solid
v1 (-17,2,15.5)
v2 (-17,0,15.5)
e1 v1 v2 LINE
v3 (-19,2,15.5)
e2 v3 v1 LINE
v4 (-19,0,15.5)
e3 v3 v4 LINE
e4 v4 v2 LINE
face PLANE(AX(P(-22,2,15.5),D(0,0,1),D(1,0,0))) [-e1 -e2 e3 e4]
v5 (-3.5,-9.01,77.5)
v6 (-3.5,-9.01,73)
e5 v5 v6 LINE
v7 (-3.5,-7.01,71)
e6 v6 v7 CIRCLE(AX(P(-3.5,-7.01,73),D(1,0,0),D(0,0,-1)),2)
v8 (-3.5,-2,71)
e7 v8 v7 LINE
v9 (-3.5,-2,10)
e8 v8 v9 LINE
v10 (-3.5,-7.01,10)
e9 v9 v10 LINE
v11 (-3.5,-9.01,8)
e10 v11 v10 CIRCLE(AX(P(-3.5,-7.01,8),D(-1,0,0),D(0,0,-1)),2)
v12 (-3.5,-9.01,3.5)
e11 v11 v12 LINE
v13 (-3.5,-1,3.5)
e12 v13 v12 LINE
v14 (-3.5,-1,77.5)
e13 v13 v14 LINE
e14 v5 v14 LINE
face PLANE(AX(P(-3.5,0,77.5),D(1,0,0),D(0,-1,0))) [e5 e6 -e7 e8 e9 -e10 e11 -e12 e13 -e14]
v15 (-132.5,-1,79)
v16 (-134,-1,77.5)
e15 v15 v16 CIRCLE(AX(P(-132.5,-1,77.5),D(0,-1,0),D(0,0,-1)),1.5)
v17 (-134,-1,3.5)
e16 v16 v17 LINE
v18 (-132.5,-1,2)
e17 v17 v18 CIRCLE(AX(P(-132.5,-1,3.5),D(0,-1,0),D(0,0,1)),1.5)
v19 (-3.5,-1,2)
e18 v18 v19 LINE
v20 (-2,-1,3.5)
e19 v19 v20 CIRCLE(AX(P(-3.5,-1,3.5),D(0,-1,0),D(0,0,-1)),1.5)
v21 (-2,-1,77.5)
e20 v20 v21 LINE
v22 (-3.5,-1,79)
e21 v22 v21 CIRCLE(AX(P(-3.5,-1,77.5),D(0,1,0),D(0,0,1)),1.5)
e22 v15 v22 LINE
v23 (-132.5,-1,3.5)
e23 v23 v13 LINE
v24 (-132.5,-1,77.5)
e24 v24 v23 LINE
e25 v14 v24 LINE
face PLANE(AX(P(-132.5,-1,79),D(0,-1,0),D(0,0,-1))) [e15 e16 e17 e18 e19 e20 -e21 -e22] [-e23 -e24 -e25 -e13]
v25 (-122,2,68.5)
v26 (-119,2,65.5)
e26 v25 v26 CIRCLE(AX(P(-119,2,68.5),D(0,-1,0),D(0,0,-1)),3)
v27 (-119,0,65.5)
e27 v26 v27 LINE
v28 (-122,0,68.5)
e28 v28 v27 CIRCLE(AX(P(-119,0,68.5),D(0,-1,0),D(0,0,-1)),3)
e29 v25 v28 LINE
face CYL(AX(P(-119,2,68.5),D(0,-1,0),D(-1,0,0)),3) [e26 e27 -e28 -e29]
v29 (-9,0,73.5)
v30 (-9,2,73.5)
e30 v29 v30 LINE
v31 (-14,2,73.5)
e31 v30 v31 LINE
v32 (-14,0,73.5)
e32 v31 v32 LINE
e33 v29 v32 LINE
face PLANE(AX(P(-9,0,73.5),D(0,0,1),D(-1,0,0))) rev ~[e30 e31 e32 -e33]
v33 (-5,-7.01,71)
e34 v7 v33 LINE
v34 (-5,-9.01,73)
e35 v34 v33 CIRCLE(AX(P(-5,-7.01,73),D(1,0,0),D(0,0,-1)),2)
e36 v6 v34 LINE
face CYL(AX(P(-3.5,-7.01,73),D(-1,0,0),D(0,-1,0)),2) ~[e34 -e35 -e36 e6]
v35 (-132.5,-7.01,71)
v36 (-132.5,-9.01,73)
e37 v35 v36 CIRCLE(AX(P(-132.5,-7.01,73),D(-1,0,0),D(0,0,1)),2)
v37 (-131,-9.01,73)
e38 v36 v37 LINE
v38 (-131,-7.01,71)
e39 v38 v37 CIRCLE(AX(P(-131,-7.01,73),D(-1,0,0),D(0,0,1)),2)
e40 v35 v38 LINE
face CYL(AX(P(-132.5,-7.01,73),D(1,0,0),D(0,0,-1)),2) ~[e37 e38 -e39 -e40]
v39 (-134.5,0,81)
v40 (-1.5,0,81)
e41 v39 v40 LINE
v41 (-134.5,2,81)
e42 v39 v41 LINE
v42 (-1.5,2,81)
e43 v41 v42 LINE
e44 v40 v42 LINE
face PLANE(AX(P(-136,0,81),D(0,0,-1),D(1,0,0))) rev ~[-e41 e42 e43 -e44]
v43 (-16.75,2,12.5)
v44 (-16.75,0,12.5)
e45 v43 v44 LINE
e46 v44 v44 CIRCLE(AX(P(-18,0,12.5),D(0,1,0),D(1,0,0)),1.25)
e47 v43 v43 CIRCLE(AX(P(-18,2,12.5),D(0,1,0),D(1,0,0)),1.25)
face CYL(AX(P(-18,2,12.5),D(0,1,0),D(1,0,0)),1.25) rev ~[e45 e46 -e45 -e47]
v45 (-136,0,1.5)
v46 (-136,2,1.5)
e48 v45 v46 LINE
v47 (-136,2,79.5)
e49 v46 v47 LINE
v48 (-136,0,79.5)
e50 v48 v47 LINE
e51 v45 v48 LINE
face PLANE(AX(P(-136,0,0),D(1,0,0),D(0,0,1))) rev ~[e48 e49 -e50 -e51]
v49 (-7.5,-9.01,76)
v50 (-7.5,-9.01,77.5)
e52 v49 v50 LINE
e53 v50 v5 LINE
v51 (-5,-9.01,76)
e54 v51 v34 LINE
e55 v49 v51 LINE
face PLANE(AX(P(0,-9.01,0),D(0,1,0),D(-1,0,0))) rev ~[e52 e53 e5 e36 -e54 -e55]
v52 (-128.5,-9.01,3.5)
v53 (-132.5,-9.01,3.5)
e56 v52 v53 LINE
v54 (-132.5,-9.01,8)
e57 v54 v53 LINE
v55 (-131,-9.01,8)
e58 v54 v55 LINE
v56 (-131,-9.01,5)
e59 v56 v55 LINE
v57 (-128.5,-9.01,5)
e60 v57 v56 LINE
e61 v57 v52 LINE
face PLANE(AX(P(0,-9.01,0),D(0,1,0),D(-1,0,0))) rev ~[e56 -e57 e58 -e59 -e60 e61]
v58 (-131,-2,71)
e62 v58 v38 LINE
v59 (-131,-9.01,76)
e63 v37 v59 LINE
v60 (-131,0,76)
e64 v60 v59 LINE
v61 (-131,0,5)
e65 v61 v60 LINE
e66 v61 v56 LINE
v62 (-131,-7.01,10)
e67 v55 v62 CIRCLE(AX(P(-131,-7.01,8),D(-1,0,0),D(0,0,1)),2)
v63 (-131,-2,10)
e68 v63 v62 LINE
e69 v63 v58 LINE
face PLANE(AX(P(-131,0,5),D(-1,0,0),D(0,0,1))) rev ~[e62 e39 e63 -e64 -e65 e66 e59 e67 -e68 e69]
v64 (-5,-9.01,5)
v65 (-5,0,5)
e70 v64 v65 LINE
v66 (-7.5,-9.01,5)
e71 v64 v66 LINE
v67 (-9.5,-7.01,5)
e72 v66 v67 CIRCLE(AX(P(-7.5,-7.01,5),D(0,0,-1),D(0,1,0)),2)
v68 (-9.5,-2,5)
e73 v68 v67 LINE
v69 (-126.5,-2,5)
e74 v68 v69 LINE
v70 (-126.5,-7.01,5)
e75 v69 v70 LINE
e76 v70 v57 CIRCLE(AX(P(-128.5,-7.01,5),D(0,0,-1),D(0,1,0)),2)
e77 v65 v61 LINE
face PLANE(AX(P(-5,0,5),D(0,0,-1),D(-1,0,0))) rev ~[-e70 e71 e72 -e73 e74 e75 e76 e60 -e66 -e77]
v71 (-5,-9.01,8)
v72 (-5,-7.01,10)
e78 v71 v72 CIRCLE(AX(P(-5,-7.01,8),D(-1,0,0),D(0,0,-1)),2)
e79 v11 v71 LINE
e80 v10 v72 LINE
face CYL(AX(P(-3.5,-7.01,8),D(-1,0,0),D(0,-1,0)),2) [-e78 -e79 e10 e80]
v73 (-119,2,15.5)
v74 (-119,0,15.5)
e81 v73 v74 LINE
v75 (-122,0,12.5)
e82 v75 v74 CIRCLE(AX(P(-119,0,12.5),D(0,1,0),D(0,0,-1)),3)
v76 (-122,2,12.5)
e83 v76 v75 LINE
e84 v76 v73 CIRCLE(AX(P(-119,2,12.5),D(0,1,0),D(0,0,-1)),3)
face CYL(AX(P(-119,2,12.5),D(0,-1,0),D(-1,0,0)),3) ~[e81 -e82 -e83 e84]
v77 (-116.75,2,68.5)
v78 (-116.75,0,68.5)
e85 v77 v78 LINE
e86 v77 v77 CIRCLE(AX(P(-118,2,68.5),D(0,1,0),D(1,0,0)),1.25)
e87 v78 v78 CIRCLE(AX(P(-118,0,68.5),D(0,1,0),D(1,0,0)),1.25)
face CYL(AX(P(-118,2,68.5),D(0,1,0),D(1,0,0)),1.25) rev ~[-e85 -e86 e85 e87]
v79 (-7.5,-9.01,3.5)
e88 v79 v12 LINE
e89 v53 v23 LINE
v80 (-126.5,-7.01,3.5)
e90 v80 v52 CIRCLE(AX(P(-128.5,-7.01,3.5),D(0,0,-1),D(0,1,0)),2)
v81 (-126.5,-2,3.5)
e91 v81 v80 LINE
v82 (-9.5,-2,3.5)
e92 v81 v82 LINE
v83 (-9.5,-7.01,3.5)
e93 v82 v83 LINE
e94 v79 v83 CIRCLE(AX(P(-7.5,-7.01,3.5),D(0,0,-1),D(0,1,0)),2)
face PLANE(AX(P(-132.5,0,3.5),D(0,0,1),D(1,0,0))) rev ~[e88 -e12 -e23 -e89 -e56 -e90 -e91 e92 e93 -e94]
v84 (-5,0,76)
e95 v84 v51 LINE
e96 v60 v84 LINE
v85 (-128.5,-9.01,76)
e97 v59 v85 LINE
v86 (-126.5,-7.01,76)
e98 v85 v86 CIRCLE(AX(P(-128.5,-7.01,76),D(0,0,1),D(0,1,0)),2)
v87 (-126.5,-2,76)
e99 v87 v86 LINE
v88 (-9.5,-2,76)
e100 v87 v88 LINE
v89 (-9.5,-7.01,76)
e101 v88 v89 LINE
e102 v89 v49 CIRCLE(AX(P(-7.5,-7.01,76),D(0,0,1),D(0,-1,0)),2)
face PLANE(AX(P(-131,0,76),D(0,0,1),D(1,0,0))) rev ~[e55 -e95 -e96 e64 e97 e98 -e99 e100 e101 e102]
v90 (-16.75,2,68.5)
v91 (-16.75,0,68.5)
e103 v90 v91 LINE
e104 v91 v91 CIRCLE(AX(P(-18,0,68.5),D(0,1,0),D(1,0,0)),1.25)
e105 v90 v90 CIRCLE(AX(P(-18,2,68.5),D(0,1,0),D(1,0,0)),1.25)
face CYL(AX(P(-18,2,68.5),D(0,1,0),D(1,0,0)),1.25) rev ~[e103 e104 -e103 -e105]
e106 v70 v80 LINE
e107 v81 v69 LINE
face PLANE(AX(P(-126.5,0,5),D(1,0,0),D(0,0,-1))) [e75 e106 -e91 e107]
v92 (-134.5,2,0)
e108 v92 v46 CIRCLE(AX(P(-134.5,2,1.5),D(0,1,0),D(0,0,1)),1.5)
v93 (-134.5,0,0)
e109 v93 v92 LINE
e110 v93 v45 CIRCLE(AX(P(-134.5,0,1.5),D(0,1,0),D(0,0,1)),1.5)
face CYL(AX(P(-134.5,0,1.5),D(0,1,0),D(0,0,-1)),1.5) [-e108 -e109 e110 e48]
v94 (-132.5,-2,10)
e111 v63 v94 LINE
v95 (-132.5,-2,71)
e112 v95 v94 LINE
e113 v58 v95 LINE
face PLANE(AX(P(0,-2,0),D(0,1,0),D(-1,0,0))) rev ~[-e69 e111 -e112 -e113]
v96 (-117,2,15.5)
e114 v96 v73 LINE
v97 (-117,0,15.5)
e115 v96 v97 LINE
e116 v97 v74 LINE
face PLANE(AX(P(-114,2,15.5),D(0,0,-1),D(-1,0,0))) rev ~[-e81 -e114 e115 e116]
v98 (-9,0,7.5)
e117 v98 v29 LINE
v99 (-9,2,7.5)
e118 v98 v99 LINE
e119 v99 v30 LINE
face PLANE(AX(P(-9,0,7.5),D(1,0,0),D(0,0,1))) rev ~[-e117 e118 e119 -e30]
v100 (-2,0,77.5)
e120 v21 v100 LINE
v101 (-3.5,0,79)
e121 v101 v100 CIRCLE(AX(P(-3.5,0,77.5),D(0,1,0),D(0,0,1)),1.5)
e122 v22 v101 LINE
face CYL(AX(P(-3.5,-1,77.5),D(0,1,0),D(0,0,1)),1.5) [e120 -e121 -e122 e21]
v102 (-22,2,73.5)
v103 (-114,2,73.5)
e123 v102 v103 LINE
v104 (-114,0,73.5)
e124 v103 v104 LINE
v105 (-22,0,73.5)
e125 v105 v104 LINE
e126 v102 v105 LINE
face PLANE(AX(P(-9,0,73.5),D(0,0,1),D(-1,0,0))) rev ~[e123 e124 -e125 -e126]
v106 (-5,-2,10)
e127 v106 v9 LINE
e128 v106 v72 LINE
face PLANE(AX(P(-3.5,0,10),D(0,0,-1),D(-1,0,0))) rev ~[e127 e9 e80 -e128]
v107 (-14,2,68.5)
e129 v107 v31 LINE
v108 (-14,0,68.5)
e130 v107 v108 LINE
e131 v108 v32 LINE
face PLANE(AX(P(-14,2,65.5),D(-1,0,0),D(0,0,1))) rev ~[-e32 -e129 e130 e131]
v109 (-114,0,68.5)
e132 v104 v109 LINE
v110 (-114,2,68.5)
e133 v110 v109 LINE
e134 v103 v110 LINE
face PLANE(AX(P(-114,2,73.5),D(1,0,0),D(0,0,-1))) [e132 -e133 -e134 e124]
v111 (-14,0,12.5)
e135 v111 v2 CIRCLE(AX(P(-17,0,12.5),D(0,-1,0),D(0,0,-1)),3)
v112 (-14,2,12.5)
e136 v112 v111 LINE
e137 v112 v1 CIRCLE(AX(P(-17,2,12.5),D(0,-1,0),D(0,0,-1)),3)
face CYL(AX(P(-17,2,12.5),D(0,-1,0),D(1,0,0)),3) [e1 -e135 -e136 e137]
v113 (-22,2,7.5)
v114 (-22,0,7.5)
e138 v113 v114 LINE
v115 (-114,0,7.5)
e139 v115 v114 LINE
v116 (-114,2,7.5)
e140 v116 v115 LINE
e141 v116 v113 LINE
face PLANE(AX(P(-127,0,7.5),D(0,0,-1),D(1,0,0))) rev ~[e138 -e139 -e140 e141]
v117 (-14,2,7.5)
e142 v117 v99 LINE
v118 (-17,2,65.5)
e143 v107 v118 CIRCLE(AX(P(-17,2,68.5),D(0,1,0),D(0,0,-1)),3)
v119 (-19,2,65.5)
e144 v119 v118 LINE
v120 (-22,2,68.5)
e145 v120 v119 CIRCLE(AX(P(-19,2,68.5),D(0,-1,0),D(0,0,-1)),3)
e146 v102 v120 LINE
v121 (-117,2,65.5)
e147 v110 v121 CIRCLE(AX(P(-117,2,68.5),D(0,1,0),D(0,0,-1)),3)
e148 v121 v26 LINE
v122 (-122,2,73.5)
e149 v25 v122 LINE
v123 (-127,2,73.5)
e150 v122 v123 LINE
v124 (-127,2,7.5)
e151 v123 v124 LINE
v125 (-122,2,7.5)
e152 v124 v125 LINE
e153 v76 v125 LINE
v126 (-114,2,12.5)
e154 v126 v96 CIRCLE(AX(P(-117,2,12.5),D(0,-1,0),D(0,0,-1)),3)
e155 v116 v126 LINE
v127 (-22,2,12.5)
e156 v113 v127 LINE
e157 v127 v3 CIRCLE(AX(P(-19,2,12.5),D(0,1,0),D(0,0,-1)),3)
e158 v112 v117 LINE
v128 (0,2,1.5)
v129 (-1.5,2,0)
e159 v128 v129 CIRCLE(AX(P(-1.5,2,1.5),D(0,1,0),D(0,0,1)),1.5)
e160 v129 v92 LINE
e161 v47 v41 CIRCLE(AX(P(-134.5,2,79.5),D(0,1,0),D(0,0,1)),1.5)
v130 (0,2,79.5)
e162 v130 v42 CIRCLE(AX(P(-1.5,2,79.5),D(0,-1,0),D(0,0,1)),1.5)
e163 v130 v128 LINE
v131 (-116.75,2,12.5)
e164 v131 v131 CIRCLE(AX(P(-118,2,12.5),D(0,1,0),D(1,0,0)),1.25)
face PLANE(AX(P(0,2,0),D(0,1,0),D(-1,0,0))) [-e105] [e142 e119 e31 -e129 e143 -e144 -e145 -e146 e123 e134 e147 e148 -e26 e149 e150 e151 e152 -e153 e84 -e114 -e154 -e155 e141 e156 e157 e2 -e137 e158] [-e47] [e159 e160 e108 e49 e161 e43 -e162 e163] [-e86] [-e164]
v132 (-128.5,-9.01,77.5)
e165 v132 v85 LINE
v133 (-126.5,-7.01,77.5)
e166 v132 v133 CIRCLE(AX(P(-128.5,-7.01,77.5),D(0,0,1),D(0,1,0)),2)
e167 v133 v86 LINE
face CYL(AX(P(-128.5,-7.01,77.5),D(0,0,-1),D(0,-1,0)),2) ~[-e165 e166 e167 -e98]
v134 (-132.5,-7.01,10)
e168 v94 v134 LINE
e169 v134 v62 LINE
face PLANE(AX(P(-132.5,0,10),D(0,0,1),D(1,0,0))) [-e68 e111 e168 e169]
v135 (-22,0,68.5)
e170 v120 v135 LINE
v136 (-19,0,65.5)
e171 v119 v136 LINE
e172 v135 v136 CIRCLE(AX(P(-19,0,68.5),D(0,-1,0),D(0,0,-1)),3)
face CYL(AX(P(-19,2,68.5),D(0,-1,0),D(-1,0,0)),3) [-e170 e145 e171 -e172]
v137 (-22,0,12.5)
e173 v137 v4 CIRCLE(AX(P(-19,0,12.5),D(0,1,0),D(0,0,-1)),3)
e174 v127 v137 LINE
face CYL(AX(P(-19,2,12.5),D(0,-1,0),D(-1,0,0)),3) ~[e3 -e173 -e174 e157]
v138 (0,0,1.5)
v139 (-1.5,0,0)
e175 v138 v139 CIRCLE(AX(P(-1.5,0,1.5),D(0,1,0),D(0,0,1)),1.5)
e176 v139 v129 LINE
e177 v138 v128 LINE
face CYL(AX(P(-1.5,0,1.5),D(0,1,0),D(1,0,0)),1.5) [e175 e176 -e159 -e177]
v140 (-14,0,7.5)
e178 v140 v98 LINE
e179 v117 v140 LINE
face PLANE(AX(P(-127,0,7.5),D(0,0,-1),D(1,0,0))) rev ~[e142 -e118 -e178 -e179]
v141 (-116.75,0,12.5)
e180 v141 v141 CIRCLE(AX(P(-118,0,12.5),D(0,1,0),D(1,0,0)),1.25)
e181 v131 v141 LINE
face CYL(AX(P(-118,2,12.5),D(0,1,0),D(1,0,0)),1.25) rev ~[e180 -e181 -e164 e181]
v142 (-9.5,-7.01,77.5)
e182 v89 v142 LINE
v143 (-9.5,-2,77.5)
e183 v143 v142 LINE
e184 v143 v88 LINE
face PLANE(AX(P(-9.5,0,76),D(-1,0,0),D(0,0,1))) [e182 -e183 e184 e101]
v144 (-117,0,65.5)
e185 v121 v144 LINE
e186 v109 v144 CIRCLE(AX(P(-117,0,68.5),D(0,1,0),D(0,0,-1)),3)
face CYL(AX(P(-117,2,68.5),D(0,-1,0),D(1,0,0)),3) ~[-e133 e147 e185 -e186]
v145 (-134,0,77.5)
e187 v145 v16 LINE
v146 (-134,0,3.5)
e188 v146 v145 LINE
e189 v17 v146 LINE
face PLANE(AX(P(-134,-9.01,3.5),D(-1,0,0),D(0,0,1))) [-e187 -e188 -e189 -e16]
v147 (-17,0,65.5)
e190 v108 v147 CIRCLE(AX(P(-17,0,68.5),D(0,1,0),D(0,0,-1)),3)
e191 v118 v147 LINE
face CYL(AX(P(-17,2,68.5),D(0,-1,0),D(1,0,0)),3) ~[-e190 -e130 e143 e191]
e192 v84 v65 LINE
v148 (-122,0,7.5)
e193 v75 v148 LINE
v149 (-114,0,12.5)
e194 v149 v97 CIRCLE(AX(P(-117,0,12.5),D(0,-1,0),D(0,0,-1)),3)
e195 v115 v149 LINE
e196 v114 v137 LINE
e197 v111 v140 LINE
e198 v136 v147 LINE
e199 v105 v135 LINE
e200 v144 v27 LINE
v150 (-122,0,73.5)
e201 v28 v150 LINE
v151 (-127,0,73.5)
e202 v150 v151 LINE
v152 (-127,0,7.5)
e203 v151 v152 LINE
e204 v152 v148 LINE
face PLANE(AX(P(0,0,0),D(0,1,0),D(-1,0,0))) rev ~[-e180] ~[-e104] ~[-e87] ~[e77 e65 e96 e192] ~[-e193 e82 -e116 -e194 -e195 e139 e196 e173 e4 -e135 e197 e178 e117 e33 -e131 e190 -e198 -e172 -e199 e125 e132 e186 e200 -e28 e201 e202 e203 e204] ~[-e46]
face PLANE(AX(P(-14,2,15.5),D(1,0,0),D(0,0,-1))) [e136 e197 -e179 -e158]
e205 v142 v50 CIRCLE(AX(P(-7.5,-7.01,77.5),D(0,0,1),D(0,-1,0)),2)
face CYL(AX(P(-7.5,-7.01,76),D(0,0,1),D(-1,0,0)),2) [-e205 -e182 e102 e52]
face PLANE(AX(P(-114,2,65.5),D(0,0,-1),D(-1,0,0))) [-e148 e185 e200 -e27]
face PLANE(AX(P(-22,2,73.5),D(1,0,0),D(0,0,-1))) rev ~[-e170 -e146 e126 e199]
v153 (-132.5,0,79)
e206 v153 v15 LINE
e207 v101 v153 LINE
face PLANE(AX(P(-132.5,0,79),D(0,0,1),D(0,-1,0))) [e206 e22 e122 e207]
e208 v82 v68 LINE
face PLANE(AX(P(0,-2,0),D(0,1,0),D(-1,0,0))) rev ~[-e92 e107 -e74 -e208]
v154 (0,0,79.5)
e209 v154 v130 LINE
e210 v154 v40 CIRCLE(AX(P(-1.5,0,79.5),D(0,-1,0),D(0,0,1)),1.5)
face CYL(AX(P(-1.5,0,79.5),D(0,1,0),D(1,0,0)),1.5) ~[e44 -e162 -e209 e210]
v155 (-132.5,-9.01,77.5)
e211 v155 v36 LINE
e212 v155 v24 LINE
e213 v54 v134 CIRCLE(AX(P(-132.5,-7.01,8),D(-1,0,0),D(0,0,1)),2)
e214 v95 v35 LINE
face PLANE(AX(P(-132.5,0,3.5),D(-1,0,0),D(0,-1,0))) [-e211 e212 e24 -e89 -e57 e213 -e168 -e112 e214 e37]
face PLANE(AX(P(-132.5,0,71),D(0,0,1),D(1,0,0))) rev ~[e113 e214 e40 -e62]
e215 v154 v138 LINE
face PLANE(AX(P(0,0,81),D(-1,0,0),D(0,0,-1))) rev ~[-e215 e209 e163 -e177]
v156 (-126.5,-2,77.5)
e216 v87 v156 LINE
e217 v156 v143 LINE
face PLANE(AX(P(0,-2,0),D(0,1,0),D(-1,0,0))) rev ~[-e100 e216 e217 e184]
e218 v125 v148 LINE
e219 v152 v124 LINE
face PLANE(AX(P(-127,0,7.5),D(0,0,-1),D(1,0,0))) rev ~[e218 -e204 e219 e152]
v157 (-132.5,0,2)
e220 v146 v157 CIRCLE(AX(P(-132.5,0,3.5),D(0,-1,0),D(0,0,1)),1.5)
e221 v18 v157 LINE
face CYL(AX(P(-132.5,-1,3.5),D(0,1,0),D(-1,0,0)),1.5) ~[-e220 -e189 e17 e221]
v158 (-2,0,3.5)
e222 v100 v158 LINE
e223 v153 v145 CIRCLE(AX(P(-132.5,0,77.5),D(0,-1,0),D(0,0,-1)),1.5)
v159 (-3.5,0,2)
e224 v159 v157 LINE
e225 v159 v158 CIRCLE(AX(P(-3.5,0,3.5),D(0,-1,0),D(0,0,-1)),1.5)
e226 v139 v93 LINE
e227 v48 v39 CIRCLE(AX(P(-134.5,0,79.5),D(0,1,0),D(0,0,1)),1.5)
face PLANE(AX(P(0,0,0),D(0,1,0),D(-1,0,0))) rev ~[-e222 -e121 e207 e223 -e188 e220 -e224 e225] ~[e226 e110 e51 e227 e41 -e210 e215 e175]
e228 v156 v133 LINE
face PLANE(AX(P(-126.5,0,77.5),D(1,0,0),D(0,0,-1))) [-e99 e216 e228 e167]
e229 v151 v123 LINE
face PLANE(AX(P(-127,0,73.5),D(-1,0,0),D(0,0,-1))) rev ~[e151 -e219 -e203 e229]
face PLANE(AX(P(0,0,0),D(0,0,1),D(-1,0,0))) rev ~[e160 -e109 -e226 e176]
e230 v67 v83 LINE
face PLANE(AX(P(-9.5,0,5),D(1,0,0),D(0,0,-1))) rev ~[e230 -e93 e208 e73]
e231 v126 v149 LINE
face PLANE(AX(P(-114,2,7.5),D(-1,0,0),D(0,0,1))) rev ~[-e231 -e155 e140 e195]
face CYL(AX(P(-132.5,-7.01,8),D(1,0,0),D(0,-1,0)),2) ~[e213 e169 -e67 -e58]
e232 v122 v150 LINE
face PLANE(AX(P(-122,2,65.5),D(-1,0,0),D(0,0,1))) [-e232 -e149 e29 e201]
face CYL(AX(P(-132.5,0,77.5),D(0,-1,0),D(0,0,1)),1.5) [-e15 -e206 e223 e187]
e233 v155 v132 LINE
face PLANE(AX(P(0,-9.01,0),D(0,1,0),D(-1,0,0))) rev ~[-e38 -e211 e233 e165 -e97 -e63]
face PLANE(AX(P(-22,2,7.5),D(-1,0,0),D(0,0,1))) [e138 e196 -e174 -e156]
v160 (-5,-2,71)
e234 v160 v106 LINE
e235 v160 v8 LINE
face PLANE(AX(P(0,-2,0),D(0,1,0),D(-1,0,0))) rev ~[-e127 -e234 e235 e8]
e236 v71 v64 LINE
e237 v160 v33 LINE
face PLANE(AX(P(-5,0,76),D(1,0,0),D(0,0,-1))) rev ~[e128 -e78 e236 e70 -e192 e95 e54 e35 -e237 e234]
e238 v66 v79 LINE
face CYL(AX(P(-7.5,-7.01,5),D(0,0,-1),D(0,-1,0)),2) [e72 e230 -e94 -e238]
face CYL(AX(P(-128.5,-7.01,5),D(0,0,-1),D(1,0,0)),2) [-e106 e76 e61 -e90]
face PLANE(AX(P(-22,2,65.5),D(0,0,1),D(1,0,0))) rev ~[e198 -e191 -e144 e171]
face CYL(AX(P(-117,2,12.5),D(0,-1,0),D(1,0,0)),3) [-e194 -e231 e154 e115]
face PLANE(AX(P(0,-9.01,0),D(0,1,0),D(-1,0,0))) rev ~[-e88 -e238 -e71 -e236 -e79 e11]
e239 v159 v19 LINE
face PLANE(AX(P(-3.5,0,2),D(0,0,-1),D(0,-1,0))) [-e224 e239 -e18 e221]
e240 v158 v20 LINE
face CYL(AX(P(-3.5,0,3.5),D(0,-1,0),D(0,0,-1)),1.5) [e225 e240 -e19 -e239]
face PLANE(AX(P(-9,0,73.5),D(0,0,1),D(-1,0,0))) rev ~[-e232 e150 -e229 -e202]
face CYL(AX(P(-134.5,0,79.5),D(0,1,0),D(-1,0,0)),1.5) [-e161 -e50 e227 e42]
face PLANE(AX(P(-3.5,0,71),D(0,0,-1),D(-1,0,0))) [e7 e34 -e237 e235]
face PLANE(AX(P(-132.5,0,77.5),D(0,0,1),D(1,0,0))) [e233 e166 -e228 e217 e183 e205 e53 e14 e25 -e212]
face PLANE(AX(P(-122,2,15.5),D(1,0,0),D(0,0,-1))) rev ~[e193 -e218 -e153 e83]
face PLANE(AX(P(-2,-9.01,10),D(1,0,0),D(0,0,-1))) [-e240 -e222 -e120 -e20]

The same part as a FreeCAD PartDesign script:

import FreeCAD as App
import Part
import Sketcher
from FreeCAD import Vector
Q = App.Units.Quantity


def edges_at(feature, points):
    """Names of the edges that pass closest to the given points."""
    edges = feature.Shape.Edges
    near = lambda p: min(range(len(edges)), key=lambda i: edges[i].distToShape(Part.Vertex(*p))[0])
    return sorted({f"Edge{near(p) + 1}" for p in points})


def add_polygon(sketch, points):
    """Adds a closed chain of lines whose ends are joined by coincident constraints."""
    first, n = sketch.GeometryCount, len(points)
    for a, b in zip(points, points[1:] + points[:1]):
        sketch.addGeometry(Part.LineSegment(App.Vector(*a, 0), App.Vector(*b, 0)), False)
    for i in range(n):
        sketch.addConstraint(Sketcher.Constraint("Coincident", first + i, 2, first + (i + 1) % n, 1))

doc = App.newDocument("Part")
params = doc.addObject("Spreadsheet::Sheet", "Params")
for row, (alias, value) in enumerate([
    ("sketch1_width", "136 mm"),
    ("sketch1_height", "81 mm"),
    ("pad1_length", "2 mm"),
    ("sketch2_width", "6 mm"),
    ("sketch2_height", "5 mm"),
    ("sketch2_width2", "1.5 mm"),
    ("pad2_length", "9.01 mm"),
    ("sketch3_width", "126 mm"),
    ("sketch3_height", "71 mm"),
    ("pad3_length", "2 mm"),
    ("sketch4_width", "118 mm"),
    ("sketch4_height", "66 mm"),
    ("sketch5_height", "1 mm"),
    ("sketch5_width", "129 mm"),
    ("pad4_length", "1.5 mm"),
    ("sketch6_height", "1 mm"),
    ("sketch6_width", "129 mm"),
    ("pad5_length", "1.5 mm"),
    ("sketch7_width", "1 mm"),
    ("sketch7_height", "77 mm"),
    ("pad6_length", "1.5 mm"),
    ("sketch8_width", "1 mm"),
    ("sketch8_height", "77 mm"),
    ("pad7_length", "1.5 mm"),
    ("sketch9_diameter", "2.5 mm"),
    ("sketch9_width", "8 mm"),
    ("pad8_length", "2 mm"),
    ("fillet_radius", "3 mm"),
    ("fillet2_radius", "1.5 mm"),
    ("fillet3_radius", "2 mm"),
], start=1):
    params.set(f"A{row}", alias)
    params.set(f"B{row}", "=" + value)
    params.setAlias(f"B{row}", alias)

body = doc.addObject("PartDesign::Body", "Body")

# Sketch on XZ plane
sketch1 = doc.addObject("Sketcher::SketchObject", "Sketch")
body.addObject(sketch1)
sketch1.AttachmentSupport = (doc.XZ_Plane, [""])
sketch1.MapMode = "FlatFace"
add_polygon(sketch1, [(0, 81), (0, 0), (-136, 0), (-136, 81)])  # lines 0-3
sketch1.addConstraint(Sketcher.Constraint("Vertical", 0))
sketch1.addConstraint(Sketcher.Constraint("Horizontal", 1))
sketch1.addConstraint(Sketcher.Constraint("Vertical", 2))
sketch1.addConstraint(Sketcher.Constraint("Horizontal", 3))
sketch1.addConstraint(Sketcher.Constraint("Coincident", 0, 2, -1, 1))
sketch1.addConstraint(Sketcher.Constraint("DistanceX", 1, 2, 1, 1, Q("136 mm")))
sketch1.addConstraint(Sketcher.Constraint("DistanceY", 0, 2, 0, 1, Q("81 mm")))
sketch1.setExpression("Constraints[9]", "Params.sketch1_width")
sketch1.setExpression("Constraints[10]", "Params.sketch1_height")
pad1 = doc.addObject("PartDesign::Pad", "Pad")
body.addObject(pad1)
pad1.Profile = sketch1
pad1.setExpression("Length", "Params.pad1_length")
pad1.Reversed = True

# Sketch on XZ plane
sketch2 = doc.addObject("Sketcher::SketchObject", "Sketch001")
body.addObject(sketch2)
sketch2.AttachmentSupport = (doc.XZ_Plane, [""])
sketch2.MapMode = "FlatFace"
add_polygon(sketch2, [(-3.5, 10), (-3.5, 3.5), (-9.5, 3.5), (-9.5, 5), (-5, 5), (-5, 10)])  # lines 0-5
add_polygon(sketch2, [(-131, 5), (-126.5, 5), (-126.5, 3.5), (-132.5, 3.5), (-132.5, 10), (-131, 10)])  # lines 6-11
add_polygon(sketch2, [(-3.5, 71), (-5, 71), (-5, 76), (-9.5, 76), (-9.5, 77.5), (-3.5, 77.5)])  # lines 12-17
add_polygon(sketch2, [(-131, 76), (-131, 71), (-132.5, 71), (-132.5, 77.5), (-126.5, 77.5), (-126.5, 76)])  # lines 18-23
sketch2.addConstraint(Sketcher.Constraint("Vertical", 0))
sketch2.addConstraint(Sketcher.Constraint("Horizontal", 1))
sketch2.addConstraint(Sketcher.Constraint("Vertical", 2))
sketch2.addConstraint(Sketcher.Constraint("Horizontal", 3))
sketch2.addConstraint(Sketcher.Constraint("Vertical", 4))
sketch2.addConstraint(Sketcher.Constraint("Horizontal", 5))
sketch2.addConstraint(Sketcher.Constraint("Horizontal", 6))
sketch2.addConstraint(Sketcher.Constraint("Vertical", 7))
sketch2.addConstraint(Sketcher.Constraint("Horizontal", 8))
sketch2.addConstraint(Sketcher.Constraint("Vertical", 9))
sketch2.addConstraint(Sketcher.Constraint("Horizontal", 10))
sketch2.addConstraint(Sketcher.Constraint("Vertical", 11))
sketch2.addConstraint(Sketcher.Constraint("Horizontal", 12))
sketch2.addConstraint(Sketcher.Constraint("Vertical", 13))
sketch2.addConstraint(Sketcher.Constraint("Horizontal", 14))
sketch2.addConstraint(Sketcher.Constraint("Vertical", 15))
sketch2.addConstraint(Sketcher.Constraint("Horizontal", 16))
sketch2.addConstraint(Sketcher.Constraint("Vertical", 17))
sketch2.addConstraint(Sketcher.Constraint("Vertical", 18))
sketch2.addConstraint(Sketcher.Constraint("Horizontal", 19))
sketch2.addConstraint(Sketcher.Constraint("Vertical", 20))
sketch2.addConstraint(Sketcher.Constraint("Horizontal", 21))
sketch2.addConstraint(Sketcher.Constraint("Vertical", 22))
sketch2.addConstraint(Sketcher.Constraint("Horizontal", 23))
sketch2.addConstraint(Sketcher.Constraint("Horizontal", 3, 2, 6, 2))
sketch2.addConstraint(Sketcher.Constraint("Horizontal", 1, 2, 7, 2))
sketch2.addConstraint(Sketcher.Constraint("Horizontal", 5, 2, 9, 2))
sketch2.addConstraint(Sketcher.Constraint("Horizontal", 17, 2, 18, 2))
sketch2.addConstraint(Sketcher.Constraint("Horizontal", 16, 2, 20, 2))
sketch2.addConstraint(Sketcher.Constraint("Horizontal", 14, 2, 22, 2))
sketch2.addConstraint(Sketcher.Constraint("Vertical", 4, 2, 12, 2))
sketch2.addConstraint(Sketcher.Constraint("Vertical", 2, 2, 14, 2))
sketch2.addConstraint(Sketcher.Constraint("Vertical", 5, 2, 16, 2))
sketch2.addConstraint(Sketcher.Constraint("Vertical", 11, 2, 18, 2))
sketch2.addConstraint(Sketcher.Constraint("Vertical", 9, 2, 19, 2))
sketch2.addConstraint(Sketcher.Constraint("Vertical", 7, 2, 21, 2))
sketch2.addConstraint(Sketcher.Constraint("Equal", 3, 6))
sketch2.addConstraint(Sketcher.Constraint("Equal", 1, 8))
sketch2.addConstraint(Sketcher.Constraint("Equal", 19, 2))
sketch2.addConstraint(Sketcher.Constraint("Equal", 11, 13))
sketch2.addConstraint(Sketcher.Constraint("Equal", 7, 15))
sketch2.addConstraint(Sketcher.Constraint("DistanceX", 1, 2, 1, 1, Q("6 mm")))
sketch2.addConstraint(Sketcher.Constraint("DistanceY", 4, 1, 4, 2, Q("5 mm")))
sketch2.addConstraint(Sketcher.Constraint("DistanceX", 5, 1, 5, 2, Q("1.5 mm")))
sketch2.addConstraint(Sketcher.Constraint("DistanceY", -1, 1, 2, 2, Q("5 mm")))
sketch2.addConstraint(Sketcher.Constraint("DistanceX", 3, 2, -1, 1, Q("5 mm")))
sketch2.addConstraint(Sketcher.Constraint("DistanceY", -1, 1, 12, 2, Q("71 mm")))
sketch2.addConstraint(Sketcher.Constraint("DistanceX", 10, 2, -1, 1, Q("131 mm")))
sketch2.setExpression("Constraints[65]", "Params.sketch2_width")
sketch2.setExpression("Constraints[66]", "Params.sketch2_height")
sketch2.setExpression("Constraints[67]", "Params.sketch2_width2")
pad2 = doc.addObject("PartDesign::Pad", "Pad001")
body.addObject(pad2)
pad2.Profile = sketch2
pad2.setExpression("Length", "Params.pad2_length")

# Sketch on XZ plane
sketch3 = doc.addObject("Sketcher::SketchObject", "Sketch002")
body.addObject(sketch3)
sketch3.AttachmentSupport = (doc.XZ_Plane, [""])
sketch3.MapMode = "FlatFace"
add_polygon(sketch3, [(-132, 78), (-4, 78), (-4, 4), (-132, 4)])  # lines 0-3
add_polygon(sketch3, [(-131, 76), (-131, 5), (-5, 5), (-5, 76)])  # lines 4-7
sketch3.addConstraint(Sketcher.Constraint("Horizontal", 0))
sketch3.addConstraint(Sketcher.Constraint("Vertical", 1))
sketch3.addConstraint(Sketcher.Constraint("Horizontal", 2))
sketch3.addConstraint(Sketcher.Constraint("Vertical", 3))
sketch3.addConstraint(Sketcher.Constraint("Vertical", 4))
sketch3.addConstraint(Sketcher.Constraint("Horizontal", 5))
sketch3.addConstraint(Sketcher.Constraint("Vertical", 6))
sketch3.addConstraint(Sketcher.Constraint("Horizontal", 7))
sketch3.addConstraint(Sketcher.Constraint("DistanceX", 5, 1, 5, 2, Q("126 mm")))
sketch3.addConstraint(Sketcher.Constraint("DistanceY", 4, 2, 4, 1, Q("71 mm")))
sketch3.addConstraint(Sketcher.Constraint("DistanceY", -1, 1, 4, 2, Q("5 mm")))
sketch3.addConstraint(Sketcher.Constraint("DistanceX", 5, 2, -1, 1, Q("5 mm")))
sketch3.addConstraint(Sketcher.Constraint("DistanceX", 2, 2, 4, 2, Q("1.5 mm")))
sketch3.addConstraint(Sketcher.Constraint("DistanceY", 2, 2, 4, 2, Q("1.5 mm")))
sketch3.addConstraint(Sketcher.Constraint("DistanceX", 5, 2, 1, 2, Q("1.5 mm")))
sketch3.addConstraint(Sketcher.Constraint("DistanceY", 6, 2, 0, 2, Q("1.5 mm")))
sketch3.setExpression("Constraints[16]", "Params.sketch3_width")
sketch3.setExpression("Constraints[17]", "Params.sketch3_height")
pad3 = doc.addObject("PartDesign::Pad", "Pad002")
body.addObject(pad3)
pad3.Profile = sketch3
pad3.setExpression("Length", "Params.pad3_length")

# Sketch on XZ plane
sketch4 = doc.addObject("Sketcher::SketchObject", "Sketch003")
body.addObject(sketch4)
sketch4.AttachmentSupport = (doc.XZ_Plane, [""])
sketch4.MapMode = "FlatFace"
add_polygon(sketch4, [(-127, 74), (-9, 74), (-9, 8), (-127, 8)])  # lines 0-3
sketch4.addConstraint(Sketcher.Constraint("Horizontal", 0))
sketch4.addConstraint(Sketcher.Constraint("Vertical", 1))
sketch4.addConstraint(Sketcher.Constraint("Horizontal", 2))
sketch4.addConstraint(Sketcher.Constraint("Vertical", 3))
sketch4.addConstraint(Sketcher.Constraint("DistanceX", 0, 1, 0, 2, Q("118 mm")))
sketch4.addConstraint(Sketcher.Constraint("DistanceY", 1, 2, 1, 1, Q("66 mm")))
sketch4.addConstraint(Sketcher.Constraint("DistanceX", 0, 2, -1, 1, Q("9 mm")))
sketch4.addConstraint(Sketcher.Constraint("DistanceY", -1, 1, 1, 2, Q("7.5 mm")))
sketch4.setExpression("Constraints[8]", "Params.sketch4_width")
sketch4.setExpression("Constraints[9]", "Params.sketch4_height")
pocket1 = doc.addObject("PartDesign::Pocket", "Pocket")
body.addObject(pocket1)
pocket1.Profile = sketch4
pocket1.Type = "UpToFirst"

# Sketch on XY plane
sketch5 = doc.addObject("Sketcher::SketchObject", "Sketch004")
body.addObject(sketch5)
sketch5.AttachmentSupport = (doc.XY_Plane, [""])
sketch5.MapMode = "FlatFace"
sketch5.AttachmentOffset = App.Placement(Vector(0, 0, 77.5), App.Rotation())
add_polygon(sketch5, [(-3.5, -1), (-3.5, 0), (-132.5, 0), (-132.5, -1)])  # lines 0-3
sketch5.addConstraint(Sketcher.Constraint("Vertical", 0))
sketch5.addConstraint(Sketcher.Constraint("Horizontal", 1))
sketch5.addConstraint(Sketcher.Constraint("Vertical", 2))
sketch5.addConstraint(Sketcher.Constraint("Horizontal", 3))
sketch5.addConstraint(Sketcher.Constraint("PointOnObject", 0, 2, -1))
sketch5.addConstraint(Sketcher.Constraint("DistanceY", 0, 1, 0, 2, Q("1 mm")))
sketch5.addConstraint(Sketcher.Constraint("DistanceX", 1, 2, 1, 1, Q("129 mm")))
sketch5.addConstraint(Sketcher.Constraint("DistanceX", 0, 2, -1, 1, Q("3.5 mm")))
sketch5.setExpression("Constraints[9]", "Params.sketch5_height")
sketch5.setExpression("Constraints[10]", "Params.sketch5_width")
pad4 = doc.addObject("PartDesign::Pad", "Pad003")
body.addObject(pad4)
pad4.Profile = sketch5
pad4.setExpression("Length", "Params.pad4_length")

# Sketch on XY plane
sketch6 = doc.addObject("Sketcher::SketchObject", "Sketch005")
body.addObject(sketch6)
sketch6.AttachmentSupport = (doc.XY_Plane, [""])
sketch6.MapMode = "FlatFace"
sketch6.AttachmentOffset = App.Placement(Vector(0, 0, 3.5), App.Rotation())
add_polygon(sketch6, [(-132.5, -1), (-132.5, 0), (-3.5, 0), (-3.5, -1)])  # lines 0-3
sketch6.addConstraint(Sketcher.Constraint("Vertical", 0))
sketch6.addConstraint(Sketcher.Constraint("Horizontal", 1))
sketch6.addConstraint(Sketcher.Constraint("Vertical", 2))
sketch6.addConstraint(Sketcher.Constraint("Horizontal", 3))
sketch6.addConstraint(Sketcher.Constraint("PointOnObject", 0, 2, -1))
sketch6.addConstraint(Sketcher.Constraint("DistanceY", 0, 1, 0, 2, Q("1 mm")))
sketch6.addConstraint(Sketcher.Constraint("DistanceX", 1, 1, 1, 2, Q("129 mm")))
sketch6.addConstraint(Sketcher.Constraint("DistanceX", 0, 2, -1, 1, Q("132.5 mm")))
sketch6.setExpression("Constraints[9]", "Params.sketch6_height")
sketch6.setExpression("Constraints[10]", "Params.sketch6_width")
pad5 = doc.addObject("PartDesign::Pad", "Pad004")
body.addObject(pad5)
pad5.Profile = sketch6
pad5.setExpression("Length", "Params.pad5_length")
pad5.Reversed = True

# Sketch on YZ plane
sketch7 = doc.addObject("Sketcher::SketchObject", "Sketch006")
body.addObject(sketch7)
sketch7.AttachmentSupport = (doc.YZ_Plane, [""])
sketch7.MapMode = "FlatFace"
sketch7.AttachmentOffset = App.Placement(Vector(0, 0, -3.5), App.Rotation())
add_polygon(sketch7, [(0, 2), (0, 79), (-1, 79), (-1, 2)])  # lines 0-3
sketch7.addConstraint(Sketcher.Constraint("Vertical", 0))
sketch7.addConstraint(Sketcher.Constraint("Horizontal", 1))
sketch7.addConstraint(Sketcher.Constraint("Vertical", 2))
sketch7.addConstraint(Sketcher.Constraint("Horizontal", 3))
sketch7.addConstraint(Sketcher.Constraint("PointOnObject", 0, 2, -2))
sketch7.addConstraint(Sketcher.Constraint("DistanceX", 1, 2, 1, 1, Q("1 mm")))
sketch7.addConstraint(Sketcher.Constraint("DistanceY", 0, 1, 0, 2, Q("77 mm")))
sketch7.addConstraint(Sketcher.Constraint("DistanceY", -1, 1, 0, 2, Q("79 mm")))
sketch7.setExpression("Constraints[9]", "Params.sketch7_width")
sketch7.setExpression("Constraints[10]", "Params.sketch7_height")
pad6 = doc.addObject("PartDesign::Pad", "Pad005")
body.addObject(pad6)
pad6.Profile = sketch7
pad6.setExpression("Length", "Params.pad6_length")

# Sketch on YZ plane
sketch8 = doc.addObject("Sketcher::SketchObject", "Sketch007")
body.addObject(sketch8)
sketch8.AttachmentSupport = (doc.YZ_Plane, [""])
sketch8.MapMode = "FlatFace"
sketch8.AttachmentOffset = App.Placement(Vector(0, 0, -132.5), App.Rotation())
add_polygon(sketch8, [(0, 79), (0, 2), (-1, 2), (-1, 79)])  # lines 0-3
sketch8.addConstraint(Sketcher.Constraint("Vertical", 0))
sketch8.addConstraint(Sketcher.Constraint("Horizontal", 1))
sketch8.addConstraint(Sketcher.Constraint("Vertical", 2))
sketch8.addConstraint(Sketcher.Constraint("Horizontal", 3))
sketch8.addConstraint(Sketcher.Constraint("PointOnObject", 0, 2, -2))
sketch8.addConstraint(Sketcher.Constraint("DistanceX", 1, 2, 1, 1, Q("1 mm")))
sketch8.addConstraint(Sketcher.Constraint("DistanceY", 0, 2, 0, 1, Q("77 mm")))
sketch8.addConstraint(Sketcher.Constraint("DistanceY", -1, 1, 0, 2, Q("2 mm")))
sketch8.setExpression("Constraints[9]", "Params.sketch8_width")
sketch8.setExpression("Constraints[10]", "Params.sketch8_height")
pad7 = doc.addObject("PartDesign::Pad", "Pad006")
body.addObject(pad7)
pad7.Profile = sketch8
pad7.setExpression("Length", "Params.pad7_length")
pad7.Reversed = True

# Sketch on XZ plane
sketch9 = doc.addObject("Sketcher::SketchObject", "Sketch008")
body.addObject(sketch9)
sketch9.AttachmentSupport = (doc.XZ_Plane, [""])
sketch9.MapMode = "FlatFace"
sketch9.AttachmentOffset = App.Placement(Vector(0, 0, -2), App.Rotation())
add_polygon(sketch9, [(-114, 7.5), (-122, 7.5), (-122, 15.5), (-114, 15.5)])  # lines 0-3
sketch9.addGeometry(Part.Circle(Vector(-118, 12.5, 0), Vector(0, 0, 1), 1.2), False)  # 4
add_polygon(sketch9, [(-122, 65.5), (-122, 73.5), (-114, 73.5), (-114, 65.5)])  # lines 5-8
sketch9.addGeometry(Part.Circle(Vector(-118, 68.5, 0), Vector(0, 0, 1), 1.2), False)  # 9
add_polygon(sketch9, [(-14, 7.5), (-22, 7.5), (-22, 15.5), (-14, 15.5)])  # lines 10-13
sketch9.addGeometry(Part.Circle(Vector(-18, 12.5, 0), Vector(0, 0, 1), 1.2), False)  # 14
add_polygon(sketch9, [(-22, 65.5), (-22, 73.5), (-14, 73.5), (-14, 65.5)])  # lines 15-18
sketch9.addGeometry(Part.Circle(Vector(-18, 68.5, 0), Vector(0, 0, 1), 1.2), False)  # 19
sketch9.addConstraint(Sketcher.Constraint("Horizontal", 0))
sketch9.addConstraint(Sketcher.Constraint("Vertical", 1))
sketch9.addConstraint(Sketcher.Constraint("Horizontal", 2))
sketch9.addConstraint(Sketcher.Constraint("Vertical", 3))
sketch9.addConstraint(Sketcher.Constraint("Vertical", 5))
sketch9.addConstraint(Sketcher.Constraint("Horizontal", 6))
sketch9.addConstraint(Sketcher.Constraint("Vertical", 7))
sketch9.addConstraint(Sketcher.Constraint("Horizontal", 8))
sketch9.addConstraint(Sketcher.Constraint("Horizontal", 10))
sketch9.addConstraint(Sketcher.Constraint("Vertical", 11))
sketch9.addConstraint(Sketcher.Constraint("Horizontal", 12))
sketch9.addConstraint(Sketcher.Constraint("Vertical", 13))
sketch9.addConstraint(Sketcher.Constraint("Vertical", 15))
sketch9.addConstraint(Sketcher.Constraint("Horizontal", 16))
sketch9.addConstraint(Sketcher.Constraint("Vertical", 17))
sketch9.addConstraint(Sketcher.Constraint("Horizontal", 18))
sketch9.addConstraint(Sketcher.Constraint("Equal", 4, 9))
sketch9.addConstraint(Sketcher.Constraint("Equal", 9, 14))
sketch9.addConstraint(Sketcher.Constraint("Equal", 14, 19))
sketch9.addConstraint(Sketcher.Constraint("Horizontal", 4, 3, 14, 3))
sketch9.addConstraint(Sketcher.Constraint("Horizontal", 9, 3, 19, 3))
sketch9.addConstraint(Sketcher.Constraint("Horizontal", 3, 2, 10, 2))
sketch9.addConstraint(Sketcher.Constraint("Horizontal", 2, 2, 11, 2))
sketch9.addConstraint(Sketcher.Constraint("Horizontal", 6, 2, 15, 2))
sketch9.addConstraint(Sketcher.Constraint("Horizontal", 8, 2, 17, 2))
sketch9.addConstraint(Sketcher.Constraint("Vertical", 4, 3, 9, 3))
sketch9.addConstraint(Sketcher.Constraint("Vertical", 14, 3, 19, 3))
sketch9.addConstraint(Sketcher.Constraint("Vertical", 1, 2, 5, 2))
sketch9.addConstraint(Sketcher.Constraint("Vertical", 3, 2, 6, 2))
sketch9.addConstraint(Sketcher.Constraint("Vertical", 11, 2, 15, 2))
sketch9.addConstraint(Sketcher.Constraint("Vertical", 13, 2, 16, 2))
sketch9.addConstraint(Sketcher.Constraint("Equal", 8, 10))
sketch9.addConstraint(Sketcher.Constraint("Equal", 18, 1))
sketch9.addConstraint(Sketcher.Constraint("Equal", 3, 5))
sketch9.addConstraint(Sketcher.Constraint("Diameter", 4, Q("2.5 mm")))
sketch9.addConstraint(Sketcher.Constraint("DistanceX", 0, 2, 0, 1, Q("8 mm")))
sketch9.addConstraint(Sketcher.Constraint("DistanceX", 0, 2, 4, 3, Q("4 mm")))
sketch9.addConstraint(Sketcher.Constraint("DistanceY", 0, 2, 4, 3, Q("5 mm")))
sketch9.addConstraint(Sketcher.Constraint("DistanceY", 9, 3, 5, 2, Q("5 mm")))
sketch9.addConstraint(Sketcher.Constraint("DistanceX", 10, 2, 14, 3, Q("4 mm")))
sketch9.addConstraint(Sketcher.Constraint("DistanceX", 4, 3, -1, 1, Q("118 mm")))
sketch9.addConstraint(Sketcher.Constraint("DistanceX", 14, 3, -1, 1, Q("18 mm")))
sketch9.addConstraint(Sketcher.Constraint("DistanceY", 4, 3, 9, 3, Q("56 mm")))
sketch9.addConstraint(Sketcher.Constraint("DistanceY", -1, 1, 4, 3, Q("12.5 mm")))
sketch9.setExpression("Constraints[50]", "Params.sketch9_diameter")
sketch9.setExpression("Constraints[51]", "Params.sketch9_width")
pad8 = doc.addObject("PartDesign::Pad", "Pad007")
body.addObject(pad8)
pad8.Profile = sketch9
pad8.setExpression("Length", "Params.pad8_length")
doc.recompute()

fillet = doc.addObject("PartDesign::Fillet", "Fillet")
body.addObject(fillet)
fillet.Base = (pad8, edges_at(pad8, [
    (-14, 1, 65.5),
    (-22, 1, 65.5),
    (-114, 1, 65.5),
    (-122, 1, 65.5),
    (-114, 1, 15.5),
    (-122, 1, 15.5),
    (-14, 1, 15.5),
    (-22, 1, 15.5),
]))
fillet.setExpression("Radius", "Params.fillet_radius")
doc.recompute()

fillet2 = doc.addObject("PartDesign::Fillet", "Fillet001")
body.addObject(fillet2)
fillet2.Base = (fillet, edges_at(fillet, [
    (0, 1, 81),
    (0, 1, 0),
    (-136, 1, 0),
    (-136, 1, 81),
    (-134, -0.5, 79),
    (-134, -0.5, 2),
    (-2, -0.5, 2),
    (-2, -0.5, 79),
]))
fillet2.setExpression("Radius", "Params.fillet2_radius")
doc.recompute()

fillet3 = doc.addObject("PartDesign::Fillet", "Fillet002")
body.addObject(fillet3)
fillet3.Base = (fillet2, edges_at(fillet2, [
    (-131.75, -9.01, 71),
    (-131.75, -9.01, 10),
    (-126.5, -9.01, 4.25),
    (-4.25, -9.01, 71),
    (-4.25, -9.01, 10),
    (-9.5, -9.01, 4.25),
    (-126.5, -9.01, 76.75),
    (-9.5, -9.01, 76.75),
]))
fillet3.setExpression("Radius", "Params.fillet3_radius")

doc.recompute()
